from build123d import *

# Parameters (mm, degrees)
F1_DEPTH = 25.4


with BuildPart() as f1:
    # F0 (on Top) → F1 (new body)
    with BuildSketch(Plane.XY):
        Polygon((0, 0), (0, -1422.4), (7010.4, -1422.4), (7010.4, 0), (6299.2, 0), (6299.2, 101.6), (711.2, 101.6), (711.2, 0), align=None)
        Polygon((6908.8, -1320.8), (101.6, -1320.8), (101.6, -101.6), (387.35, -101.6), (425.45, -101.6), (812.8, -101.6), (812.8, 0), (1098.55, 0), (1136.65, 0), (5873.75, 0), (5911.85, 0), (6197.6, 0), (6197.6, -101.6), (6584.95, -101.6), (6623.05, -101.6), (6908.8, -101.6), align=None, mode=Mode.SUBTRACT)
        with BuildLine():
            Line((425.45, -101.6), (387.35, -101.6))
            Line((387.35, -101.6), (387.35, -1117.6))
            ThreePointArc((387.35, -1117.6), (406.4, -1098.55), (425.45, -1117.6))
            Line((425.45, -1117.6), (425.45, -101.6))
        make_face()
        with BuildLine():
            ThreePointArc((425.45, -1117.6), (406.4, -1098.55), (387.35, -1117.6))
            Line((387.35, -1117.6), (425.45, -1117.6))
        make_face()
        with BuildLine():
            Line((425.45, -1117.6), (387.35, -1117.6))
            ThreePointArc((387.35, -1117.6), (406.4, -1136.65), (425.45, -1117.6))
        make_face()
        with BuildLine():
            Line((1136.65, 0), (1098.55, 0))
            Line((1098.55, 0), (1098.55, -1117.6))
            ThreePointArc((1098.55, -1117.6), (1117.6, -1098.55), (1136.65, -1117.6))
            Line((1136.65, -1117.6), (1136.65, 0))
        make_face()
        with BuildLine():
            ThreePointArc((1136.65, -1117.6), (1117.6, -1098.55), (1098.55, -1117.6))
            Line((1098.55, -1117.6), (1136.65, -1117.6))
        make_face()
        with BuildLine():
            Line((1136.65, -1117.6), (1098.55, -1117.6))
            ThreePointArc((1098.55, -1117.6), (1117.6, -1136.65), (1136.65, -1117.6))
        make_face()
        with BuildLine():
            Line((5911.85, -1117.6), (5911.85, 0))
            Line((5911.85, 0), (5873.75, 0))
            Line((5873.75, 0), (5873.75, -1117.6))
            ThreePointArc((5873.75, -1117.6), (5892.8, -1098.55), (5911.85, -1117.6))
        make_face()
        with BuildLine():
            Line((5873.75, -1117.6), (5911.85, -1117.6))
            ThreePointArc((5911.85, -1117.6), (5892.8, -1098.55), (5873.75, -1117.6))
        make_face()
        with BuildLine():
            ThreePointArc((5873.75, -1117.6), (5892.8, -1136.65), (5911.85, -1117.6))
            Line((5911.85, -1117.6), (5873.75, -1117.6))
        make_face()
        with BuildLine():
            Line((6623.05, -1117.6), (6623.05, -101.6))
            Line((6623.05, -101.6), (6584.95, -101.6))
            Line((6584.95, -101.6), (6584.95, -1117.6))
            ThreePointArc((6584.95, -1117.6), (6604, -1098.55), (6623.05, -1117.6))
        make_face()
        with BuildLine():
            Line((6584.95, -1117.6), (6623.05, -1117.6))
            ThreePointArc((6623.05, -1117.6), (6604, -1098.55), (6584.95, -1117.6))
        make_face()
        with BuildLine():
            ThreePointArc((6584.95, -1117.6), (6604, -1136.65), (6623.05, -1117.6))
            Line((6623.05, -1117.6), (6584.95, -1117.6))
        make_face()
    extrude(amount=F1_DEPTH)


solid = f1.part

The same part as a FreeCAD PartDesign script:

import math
import FreeCAD as App
import Part
import Sketcher

V = App.Vector
Q = App.Units.Quantity

doc = App.newDocument("Part")
body = doc.addObject("PartDesign::Body", "Body")

# Sketch on XY plane
sketch1 = body.newObject("Sketcher::SketchObject", "Sketch")
sketch1.AttachmentSupport = (doc.getObject("XY_Plane"), [""])
sketch1.MapMode = "FlatFace"
sketch1.addGeometry(Part.LineSegment(V(0, 0, 0), V(0, -1422, 0)), False)
sketch1.addGeometry(Part.LineSegment(V(0, -1422, 0), V(7010, -1422, 0)), False)
sketch1.addGeometry(Part.LineSegment(V(7010, -1422, 0), V(7010, 0, 0)), False)
sketch1.addGeometry(Part.LineSegment(V(7010, 0, 0), V(6299, 0, 0)), False)
sketch1.addGeometry(Part.LineSegment(V(6299, 0, 0), V(6299, 102, 0)), False)
sketch1.addGeometry(Part.LineSegment(V(6299, 102, 0), V(711, 102, 0)), False)
sketch1.addGeometry(Part.LineSegment(V(711, 102, 0), V(711, 0, 0)), False)
sketch1.addGeometry(Part.LineSegment(V(711, 0, 0), V(0, 0, 0)), False)
sketch1.addGeometry(Part.LineSegment(V(6909, -102, 0), V(6909, -1321, 0)), False)
sketch1.addGeometry(Part.LineSegment(V(6909, -1321, 0), V(102, -1321, 0)), False)
sketch1.addGeometry(Part.LineSegment(V(102, -1321, 0), V(102, -102, 0)), False)
sketch1.addGeometry(Part.LineSegment(V(102, -102, 0), V(387, -102, 0)), False)
sketch1.addGeometry(Part.LineSegment(V(387, -102, 0), V(387, -1118, 0)), False)
sketch1.addGeometry(Part.ArcOfCircle(Part.Circle(V(406, -1118, 0), V(0, 0, 1), 19), math.radians(180), math.radians(360)), False)
sketch1.addGeometry(Part.LineSegment(V(425, -1118, 0), V(425, -102, 0)), False)
sketch1.addGeometry(Part.LineSegment(V(425, -102, 0), V(813, -102, 0)), False)
sketch1.addGeometry(Part.LineSegment(V(813, -102, 0), V(813, 0, 0)), False)
sketch1.addGeometry(Part.LineSegment(V(813, 0, 0), V(1099, 0, 0)), False)
sketch1.addGeometry(Part.LineSegment(V(1099, 0, 0), V(1099, -1118, 0)), False)
sketch1.addGeometry(Part.ArcOfCircle(Part.Circle(V(1118, -1118, 0), V(0, 0, 1), 19), math.radians(180), math.radians(360)), False)
sketch1.addGeometry(Part.LineSegment(V(1137, -1118, 0), V(1137, 0, 0)), False)
sketch1.addGeometry(Part.LineSegment(V(1137, 0, 0), V(5874, 0, 0)), False)
sketch1.addGeometry(Part.LineSegment(V(5874, 0, 0), V(5874, -1118, 0)), False)
sketch1.addGeometry(Part.ArcOfCircle(Part.Circle(V(5893, -1118, 0), V(0, 0, 1), 19), math.radians(180), math.radians(360)), False)
sketch1.addGeometry(Part.LineSegment(V(5912, -1118, 0), V(5912, 0, 0)), False)
sketch1.addGeometry(Part.LineSegment(V(5912, 0, 0), V(6198, 0, 0)), False)
sketch1.addGeometry(Part.LineSegment(V(6198, 0, 0), V(6198, -102, 0)), False)
sketch1.addGeometry(Part.LineSegment(V(6198, -102, 0), V(6585, -102, 0)), False)
sketch1.addGeometry(Part.LineSegment(V(6585, -102, 0), V(6585, -1118, 0)), False)
sketch1.addGeometry(Part.ArcOfCircle(Part.Circle(V(6604, -1118, 0), V(0, 0, 1), 19), math.radians(180), math.radians(360)), False)
sketch1.addGeometry(Part.LineSegment(V(6623, -1118, 0), V(6623, -102, 0)), False)
sketch1.addGeometry(Part.LineSegment(V(6623, -102, 0), V(6909, -102, 0)), False)
sketch1.addConstraint(Sketcher.Constraint("Coincident", 0, 2, 1, 1))
sketch1.addConstraint(Sketcher.Constraint("Coincident", 1, 2, 2, 1))
sketch1.addConstraint(Sketcher.Constraint("Coincident", 2, 2, 3, 1))
sketch1.addConstraint(Sketcher.Constraint("Coincident", 3, 2, 4, 1))
sketch1.addConstraint(Sketcher.Constraint("Coincident", 4, 2, 5, 1))
sketch1.addConstraint(Sketcher.Constraint("Coincident", 5, 2, 6, 1))
sketch1.addConstraint(Sketcher.Constraint("Coincident", 6, 2, 7, 1))
sketch1.addConstraint(Sketcher.Constraint("Coincident", 7, 2, 0, 1))
sketch1.addConstraint(Sketcher.Constraint("Coincident", 8, 2, 9, 1))
sketch1.addConstraint(Sketcher.Constraint("Coincident", 9, 2, 10, 1))
sketch1.addConstraint(Sketcher.Constraint("Coincident", 10, 2, 11, 1))
sketch1.addConstraint(Sketcher.Constraint("Coincident", 11, 2, 12, 1))
sketch1.addConstraint(Sketcher.Constraint("Tangent", 12, 2, 13, 1))
sketch1.addConstraint(Sketcher.Constraint("Tangent", 13, 2, 14, 1))
sketch1.addConstraint(Sketcher.Constraint("Coincident", 14, 2, 15, 1))
sketch1.addConstraint(Sketcher.Constraint("Coincident", 15, 2, 16, 1))
sketch1.addConstraint(Sketcher.Constraint("Coincident", 16, 2, 17, 1))
sketch1.addConstraint(Sketcher.Constraint("Coincident", 17, 2, 18, 1))
sketch1.addConstraint(Sketcher.Constraint("Tangent", 18, 2, 19, 1))
sketch1.addConstraint(Sketcher.Constraint("Tangent", 19, 2, 20, 1))
sketch1.addConstraint(Sketcher.Constraint("Coincident", 20, 2, 21, 1))
sketch1.addConstraint(Sketcher.Constraint("Coincident", 21, 2, 22, 1))
sketch1.addConstraint(Sketcher.Constraint("Tangent", 22, 2, 23, 1))
sketch1.addConstraint(Sketcher.Constraint("Tangent", 23, 2, 24, 1))
sketch1.addConstraint(Sketcher.Constraint("Coincident", 24, 2, 25, 1))
sketch1.addConstraint(Sketcher.Constraint("Coincident", 25, 2, 26, 1))
sketch1.addConstraint(Sketcher.Constraint("Coincident", 26, 2, 27, 1))
sketch1.addConstraint(Sketcher.Constraint("Coincident", 27, 2, 28, 1))
sketch1.addConstraint(Sketcher.Constraint("Tangent", 28, 2, 29, 1))
sketch1.addConstraint(Sketcher.Constraint("Tangent", 29, 2, 30, 1))
sketch1.addConstraint(Sketcher.Constraint("Coincident", 30, 2, 31, 1))
sketch1.addConstraint(Sketcher.Constraint("Coincident", 31, 2, 8, 1))
sketch1.addConstraint(Sketcher.Constraint("Vertical", 0))
sketch1.addConstraint(Sketcher.Constraint("Horizontal", 1))
sketch1.addConstraint(Sketcher.Constraint("Vertical", 2))
sketch1.addConstraint(Sketcher.Constraint("Horizontal", 3))
sketch1.addConstraint(Sketcher.Constraint("Vertical", 4))
sketch1.addConstraint(Sketcher.Constraint("Horizontal", 5))
sketch1.addConstraint(Sketcher.Constraint("Vertical", 6))
sketch1.addConstraint(Sketcher.Constraint("Horizontal", 7))
sketch1.addConstraint(Sketcher.Constraint("Vertical", 8))
sketch1.addConstraint(Sketcher.Constraint("Horizontal", 9))
sketch1.addConstraint(Sketcher.Constraint("Vertical", 10))
sketch1.addConstraint(Sketcher.Constraint("Horizontal", 11))
sketch1.addConstraint(Sketcher.Constraint("Vertical", 12))
sketch1.addConstraint(Sketcher.Constraint("Vertical", 14))
sketch1.addConstraint(Sketcher.Constraint("Horizontal", 15))
sketch1.addConstraint(Sketcher.Constraint("Vertical", 16))
sketch1.addConstraint(Sketcher.Constraint("Horizontal", 17))
sketch1.addConstraint(Sketcher.Constraint("Vertical", 18))
sketch1.addConstraint(Sketcher.Constraint("Vertical", 20))
sketch1.addConstraint(Sketcher.Constraint("Horizontal", 21))
sketch1.addConstraint(Sketcher.Constraint("Vertical", 22))
sketch1.addConstraint(Sketcher.Constraint("Vertical", 24))
sketch1.addConstraint(Sketcher.Constraint("Horizontal", 25))
sketch1.addConstraint(Sketcher.Constraint("Vertical", 26))
sketch1.addConstraint(Sketcher.Constraint("Horizontal", 27))
sketch1.addConstraint(Sketcher.Constraint("Vertical", 28))
sketch1.addConstraint(Sketcher.Constraint("Vertical", 30))
sketch1.addConstraint(Sketcher.Constraint("Horizontal", 31))
sketch1.addConstraint(Sketcher.Constraint("Coincident", 7, 2, -1, 1))
sketch1.addConstraint(Sketcher.Constraint("Equal", 13, 19))
sketch1.addConstraint(Sketcher.Constraint("Equal", 19, 23))
sketch1.addConstraint(Sketcher.Constraint("Equal", 23, 29))
sketch1.addConstraint(Sketcher.Constraint("PointOnObject", 2, 2, -1))
sketch1.addConstraint(Sketcher.Constraint("PointOnObject", 16, 2, -1))
sketch1.addConstraint(Sketcher.Constraint("PointOnObject", 20, 2, -1))
sketch1.addConstraint(Sketcher.Constraint("PointOnObject", 24, 2, -1))
sketch1.addConstraint(Sketcher.Constraint("Horizontal", 13, 3, 19, 3))
sketch1.addConstraint(Sketcher.Constraint("Horizontal", 19, 3, 23, 3))
sketch1.addConstraint(Sketcher.Constraint("Horizontal", 23, 3, 29, 3))
sketch1.addConstraint(Sketcher.Constraint("Horizontal", 11, 2, 14, 2))
sketch1.addConstraint(Sketcher.Constraint("Horizontal", 15, 2, 26, 2))
sketch1.addConstraint(Sketcher.Constraint("Horizontal", 27, 2, 30, 2))
sketch1.addConstraint(Sketcher.Constraint("Equal", 3, 7))
sketch1.addConstraint(Sketcher.Constraint("Equal", 11, 17))
sketch1.addConstraint(Sketcher.Constraint("Equal", 17, 25))
sketch1.addConstraint(Sketcher.Constraint("Equal", 15, 27))
sketch1.addConstraint(Sketcher.Constraint("Equal", 25, 31))
sketch1.addConstraint(Sketcher.Constraint("Equal", 6, 16))
sketch1.addConstraint(Sketcher.Constraint("DistanceX", 1, 1, 1, 2, Q("276 in")))
sketch1.addConstraint(Sketcher.Constraint("DistanceX", 3, 2, 3, 1, Q("28 in")))
sketch1.addConstraint(Sketcher.Constraint("DistanceX", 9, 2, 9, 1, Q("268 in")))
sketch1.addConstraint(Sketcher.Constraint("DistanceY", 0, 2, 0, 1, Q("56 in")))
sketch1.addConstraint(Sketcher.Constraint("DistanceY", 4, 1, 4, 2, Q("4 in")))
sketch1.addConstraint(Sketcher.Constraint("DistanceY", 8, 2, 8, 1, Q("48 in")))
sketch1.addConstraint(Sketcher.Constraint("DistanceY", 12, 2, 12, 1, Q("40 in")))
sketch1.addConstraint(Sketcher.Constraint("Radius", 13, Q("0.75 in")))
sketch1.addConstraint(Sketcher.Constraint("DistanceX", 21, 1, 21, 2, Q("186.5 in")))
sketch1.addConstraint(Sketcher.Constraint("DistanceX", -1, 1, 13, 3, Q("16 in")))
sketch1.addConstraint(Sketcher.Constraint("DistanceX", -1, 1, 19, 3, Q("44 in")))
pad1 = body.newObject("PartDesign::Pad", "Pad")
pad1.Profile = sketch1
pad1.Length = Q("1 in")

doc.recompute()
